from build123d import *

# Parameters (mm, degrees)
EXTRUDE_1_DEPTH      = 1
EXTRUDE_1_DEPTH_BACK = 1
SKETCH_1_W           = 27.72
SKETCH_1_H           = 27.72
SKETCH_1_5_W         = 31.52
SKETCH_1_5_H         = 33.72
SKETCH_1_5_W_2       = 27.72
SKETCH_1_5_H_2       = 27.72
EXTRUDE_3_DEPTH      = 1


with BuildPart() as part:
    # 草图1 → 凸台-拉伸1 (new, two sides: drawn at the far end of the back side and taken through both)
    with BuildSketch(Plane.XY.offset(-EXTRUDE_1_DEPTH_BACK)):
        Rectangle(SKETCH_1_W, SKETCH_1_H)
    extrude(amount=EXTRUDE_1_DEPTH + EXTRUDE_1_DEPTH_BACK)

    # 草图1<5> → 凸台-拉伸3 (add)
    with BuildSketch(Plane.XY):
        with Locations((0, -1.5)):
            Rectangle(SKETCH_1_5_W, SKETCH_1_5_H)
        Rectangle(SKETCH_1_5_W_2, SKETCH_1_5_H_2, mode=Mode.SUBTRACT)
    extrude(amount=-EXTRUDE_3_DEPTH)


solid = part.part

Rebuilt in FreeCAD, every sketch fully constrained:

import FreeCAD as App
import Part
import Sketcher

V = App.Vector

doc = App.newDocument("Part")
body = doc.addObject("PartDesign::Body", "Body")

# Sketch on XY plane
sketch1 = body.newObject("Sketcher::SketchObject", "Sketch")
sketch1.AttachmentSupport = (doc.getObject("XY_Plane"), [""])
sketch1.MapMode = "FlatFace"
sketch1.addGeometry(Part.LineSegment(V(-13.86, 13.86, 0), V(-13.86, -13.86, 0)), False)
sketch1.addGeometry(Part.LineSegment(V(-13.86, -13.86, 0), V(13.86, -13.86, 0)), False)
sketch1.addGeometry(Part.LineSegment(V(13.86, -13.86, 0), V(13.86, 13.86, 0)), False)
sketch1.addGeometry(Part.LineSegment(V(13.86, 13.86, 0), V(-13.86, 13.86, 0)), False)
sketch1.addConstraint(Sketcher.Constraint("Coincident", 0, 2, 1, 1))
sketch1.addConstraint(Sketcher.Constraint("Coincident", 1, 2, 2, 1))
sketch1.addConstraint(Sketcher.Constraint("Coincident", 2, 2, 3, 1))
sketch1.addConstraint(Sketcher.Constraint("Coincident", 3, 2, 0, 1))
sketch1.addConstraint(Sketcher.Constraint("Vertical", 0))
sketch1.addConstraint(Sketcher.Constraint("Horizontal", 1))
sketch1.addConstraint(Sketcher.Constraint("Vertical", 2))
sketch1.addConstraint(Sketcher.Constraint("Horizontal", 3))
sketch1.addConstraint(Sketcher.Constraint("Symmetric", 0, 2, 2, 2, -1, 1))
sketch1.addConstraint(Sketcher.Constraint("Equal", 3, 0))
sketch1.addConstraint(Sketcher.Constraint("DistanceX", 1, 1, 1, 2, 27.72))
pad1 = body.newObject("PartDesign::Pad", "Pad")
pad1.Profile = sketch1
pad1.Type = "TwoLengths"
pad1.Length = 1
pad1.Length2 = 1

# Sketch on XY plane
sketch2 = body.newObject("Sketcher::SketchObject", "Sketch001")
sketch2.AttachmentSupport = (doc.getObject("XY_Plane"), [""])
sketch2.MapMode = "FlatFace"
sketch2.addGeometry(Part.LineSegment(V(-15.76, 15.36, 0), V(-15.76, -18.36, 0)), False)
sketch2.addGeometry(Part.LineSegment(V(-15.76, -18.36, 0), V(15.76, -18.36, 0)), False)
sketch2.addGeometry(Part.LineSegment(V(15.76, -18.36, 0), V(15.76, 15.36, 0)), False)
sketch2.addGeometry(Part.LineSegment(V(15.76, 15.36, 0), V(-15.76, 15.36, 0)), False)
sketch2.addGeometry(Part.LineSegment(V(13.86, -13.86, 0), V(-13.86, -13.86, 0)), False)
sketch2.addGeometry(Part.LineSegment(V(-13.86, -13.86, 0), V(-13.86, 13.86, 0)), False)
sketch2.addGeometry(Part.LineSegment(V(-13.86, 13.86, 0), V(13.86, 13.86, 0)), False)
sketch2.addGeometry(Part.LineSegment(V(13.86, 13.86, 0), V(13.86, -13.86, 0)), False)
sketch2.addConstraint(Sketcher.Constraint("Coincident", 0, 2, 1, 1))
sketch2.addConstraint(Sketcher.Constraint("Coincident", 1, 2, 2, 1))
sketch2.addConstraint(Sketcher.Constraint("Coincident", 2, 2, 3, 1))
sketch2.addConstraint(Sketcher.Constraint("Coincident", 3, 2, 0, 1))
sketch2.addConstraint(Sketcher.Constraint("Coincident", 4, 2, 5, 1))
sketch2.addConstraint(Sketcher.Constraint("Coincident", 5, 2, 6, 1))
sketch2.addConstraint(Sketcher.Constraint("Coincident", 6, 2, 7, 1))
sketch2.addConstraint(Sketcher.Constraint("Coincident", 7, 2, 4, 1))
sketch2.addConstraint(Sketcher.Constraint("Vertical", 0))
sketch2.addConstraint(Sketcher.Constraint("Horizontal", 1))
sketch2.addConstraint(Sketcher.Constraint("Vertical", 2))
sketch2.addConstraint(Sketcher.Constraint("Horizontal", 3))
sketch2.addConstraint(Sketcher.Constraint("Horizontal", 4))
sketch2.addConstraint(Sketcher.Constraint("Vertical", 5))
sketch2.addConstraint(Sketcher.Constraint("Horizontal", 6))
sketch2.addConstraint(Sketcher.Constraint("Vertical", 7))
sketch2.addConstraint(Sketcher.Constraint("Symmetric", 4, 2, 6, 2, -1, 1))
sketch2.addConstraint(Sketcher.Constraint("Equal", 6, 5))
sketch2.addConstraint(Sketcher.Constraint("DistanceX", 1, 1, 1, 2, 31.52))
sketch2.addConstraint(Sketcher.Constraint("DistanceX", 4, 2, 4, 1, 27.72))
sketch2.addConstraint(Sketcher.Constraint("DistanceY", 0, 2, 0, 1, 33.72))
sketch2.addConstraint(Sketcher.Constraint("DistanceX", 0, 2, 4, 2, 1.9))
sketch2.addConstraint(Sketcher.Constraint("DistanceY", 0, 2, 4, 2, 4.5))
pad2 = body.newObject("PartDesign::Pad", "Pad001")
pad2.Profile = sketch2
pad2.Length = 1
pad2.Reversed = True

doc.recompute()
